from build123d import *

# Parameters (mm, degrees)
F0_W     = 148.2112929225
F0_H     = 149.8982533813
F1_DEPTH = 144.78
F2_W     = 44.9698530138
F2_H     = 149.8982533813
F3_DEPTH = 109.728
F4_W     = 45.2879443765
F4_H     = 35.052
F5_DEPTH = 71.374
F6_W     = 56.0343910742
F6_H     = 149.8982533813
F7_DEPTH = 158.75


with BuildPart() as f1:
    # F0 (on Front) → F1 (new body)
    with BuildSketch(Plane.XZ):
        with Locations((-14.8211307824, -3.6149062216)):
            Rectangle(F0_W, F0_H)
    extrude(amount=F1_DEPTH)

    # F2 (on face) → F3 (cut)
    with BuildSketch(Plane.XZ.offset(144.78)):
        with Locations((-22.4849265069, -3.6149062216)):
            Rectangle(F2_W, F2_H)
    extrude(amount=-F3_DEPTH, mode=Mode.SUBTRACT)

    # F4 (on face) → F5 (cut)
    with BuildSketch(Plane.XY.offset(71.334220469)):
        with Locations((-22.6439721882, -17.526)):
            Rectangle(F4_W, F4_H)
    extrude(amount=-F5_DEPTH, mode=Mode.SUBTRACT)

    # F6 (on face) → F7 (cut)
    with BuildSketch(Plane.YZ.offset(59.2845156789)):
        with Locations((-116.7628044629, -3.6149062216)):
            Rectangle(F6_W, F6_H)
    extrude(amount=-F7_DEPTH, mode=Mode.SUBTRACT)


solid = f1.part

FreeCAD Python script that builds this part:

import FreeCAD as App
import Part
import Sketcher
Q = App.Units.Quantity

doc = App.newDocument("Part")
body = doc.addObject("PartDesign::Body", "Body")

# Sketch on XZ plane
sketch1 = doc.addObject("Sketcher::SketchObject", "Sketch")
body.addObject(sketch1)
sketch1.AttachmentSupport = (doc.XZ_Plane, [""])
sketch1.MapMode = "FlatFace"
sketch1.addGeometry(Part.LineSegment(App.Vector(-89, 71, 0), App.Vector(-89, -79, 0)), False)
sketch1.addGeometry(Part.LineSegment(App.Vector(-89, -79, 0), App.Vector(59, -79, 0)), False)
sketch1.addGeometry(Part.LineSegment(App.Vector(59, -79, 0), App.Vector(59, 71, 0)), False)
sketch1.addGeometry(Part.LineSegment(App.Vector(59, 71, 0), App.Vector(-89, 71, 0)), False)
sketch1.addConstraint(Sketcher.Constraint("Coincident", 0, 2, 1, 1))
sketch1.addConstraint(Sketcher.Constraint("Coincident", 1, 2, 2, 1))
sketch1.addConstraint(Sketcher.Constraint("Coincident", 2, 2, 3, 1))
sketch1.addConstraint(Sketcher.Constraint("Coincident", 3, 2, 0, 1))
sketch1.addConstraint(Sketcher.Constraint("Vertical", 0))
sketch1.addConstraint(Sketcher.Constraint("Horizontal", 1))
sketch1.addConstraint(Sketcher.Constraint("Vertical", 2))
sketch1.addConstraint(Sketcher.Constraint("Horizontal", 3))
sketch1.addConstraint(Sketcher.Constraint("DistanceX", 1, 1, 1, 2, Q("148.211293 mm")))
sketch1.addConstraint(Sketcher.Constraint("DistanceY", 0, 2, 0, 1, Q("149.898253 mm")))
sketch1.addConstraint(Sketcher.Constraint("DistanceY", -1, 1, 2, 2, Q("71.33422 mm")))
sketch1.addConstraint(Sketcher.Constraint("DistanceX", 0, 2, -1, 1, Q("88.926777 mm")))
pad1 = doc.addObject("PartDesign::Pad", "Pad")
body.addObject(pad1)
pad1.Profile = sketch1
pad1.Length = Q("5.7 in")

# Sketch on XZ plane
sketch2 = doc.addObject("Sketcher::SketchObject", "Sketch001")
body.addObject(sketch2)
sketch2.AttachmentSupport = (doc.XZ_Plane, [""])
sketch2.MapMode = "FlatFace"
sketch2.AttachmentOffset = App.Placement(App.Vector(0, 0, 5.7 * 25.4), App.Rotation())
sketch2.addGeometry(Part.LineSegment(App.Vector(-45, 71, 0), App.Vector(-45, -79, 0)), False)
sketch2.addGeometry(Part.LineSegment(App.Vector(-45, -79, 0), App.Vector(0, -79, 0)), False)
sketch2.addGeometry(Part.LineSegment(App.Vector(0, -79, 0), App.Vector(0, 71, 0)), False)
sketch2.addGeometry(Part.LineSegment(App.Vector(0, 71, 0), App.Vector(-45, 71, 0)), False)
sketch2.addConstraint(Sketcher.Constraint("Coincident", 0, 2, 1, 1))
sketch2.addConstraint(Sketcher.Constraint("Coincident", 1, 2, 2, 1))
sketch2.addConstraint(Sketcher.Constraint("Coincident", 2, 2, 3, 1))
sketch2.addConstraint(Sketcher.Constraint("Coincident", 3, 2, 0, 1))
sketch2.addConstraint(Sketcher.Constraint("Vertical", 0))
sketch2.addConstraint(Sketcher.Constraint("Horizontal", 1))
sketch2.addConstraint(Sketcher.Constraint("Vertical", 2))
sketch2.addConstraint(Sketcher.Constraint("Horizontal", 3))
sketch2.addConstraint(Sketcher.Constraint("PointOnObject", 1, 2, -2))
sketch2.addConstraint(Sketcher.Constraint("DistanceX", 1, 1, 1, 2, Q("44.969853 mm")))
sketch2.addConstraint(Sketcher.Constraint("DistanceY", 0, 2, 0, 1, Q("149.898253 mm")))
sketch2.addConstraint(Sketcher.Constraint("DistanceY", -1, 1, 2, 2, Q("71.33422 mm")))
pocket1 = doc.addObject("PartDesign::Pocket", "Pocket")
body.addObject(pocket1)
pocket1.Profile = sketch2
pocket1.Length = Q("4.32 in")

# Sketch on XY plane
sketch3 = doc.addObject("Sketcher::SketchObject", "Sketch002")
body.addObject(sketch3)
sketch3.AttachmentSupport = (doc.XY_Plane, [""])
sketch3.MapMode = "FlatFace"
sketch3.AttachmentOffset = App.Placement(App.Vector(0, 0, 71.33422), App.Rotation())
sketch3.addGeometry(Part.LineSegment(App.Vector(-45, 0, 0), App.Vector(-45, -35, 0)), False)
sketch3.addGeometry(Part.LineSegment(App.Vector(-45, -35, 0), App.Vector(0, -35, 0)), False)
sketch3.addGeometry(Part.LineSegment(App.Vector(0, -35, 0), App.Vector(0, 0, 0)), False)
sketch3.addGeometry(Part.LineSegment(App.Vector(0, 0, 0), App.Vector(-45, 0, 0)), False)
sketch3.addConstraint(Sketcher.Constraint("Coincident", 0, 2, 1, 1))
sketch3.addConstraint(Sketcher.Constraint("Coincident", 1, 2, 2, 1))
sketch3.addConstraint(Sketcher.Constraint("Coincident", 2, 2, 3, 1))
sketch3.addConstraint(Sketcher.Constraint("Coincident", 3, 2, 0, 1))
sketch3.addConstraint(Sketcher.Constraint("Vertical", 0))
sketch3.addConstraint(Sketcher.Constraint("Horizontal", 1))
sketch3.addConstraint(Sketcher.Constraint("Vertical", 2))
sketch3.addConstraint(Sketcher.Constraint("Horizontal", 3))
sketch3.addConstraint(Sketcher.Constraint("Coincident", 2, 2, -1, 1))
sketch3.addConstraint(Sketcher.Constraint("DistanceY", 0, 2, 0, 1, Q("1.38 in")))
sketch3.addConstraint(Sketcher.Constraint("DistanceX", 1, 1, 1, 2, Q("45.287944 mm")))
pocket2 = doc.addObject("PartDesign::Pocket", "Pocket001")
body.addObject(pocket2)
pocket2.Profile = sketch3
pocket2.Length = Q("2.81 in")

# Sketch on YZ plane
sketch4 = doc.addObject("Sketcher::SketchObject", "Sketch003")
body.addObject(sketch4)
sketch4.AttachmentSupport = (doc.YZ_Plane, [""])
sketch4.MapMode = "FlatFace"
sketch4.AttachmentOffset = App.Placement(App.Vector(0, 0, 59.284516), App.Rotation())
sketch4.addGeometry(Part.LineSegment(App.Vector(-145, 71, 0), App.Vector(-145, -79, 0)), False)
sketch4.addGeometry(Part.LineSegment(App.Vector(-145, -79, 0), App.Vector(-89, -79, 0)), False)
sketch4.addGeometry(Part.LineSegment(App.Vector(-89, -79, 0), App.Vector(-89, 71, 0)), False)
sketch4.addGeometry(Part.LineSegment(App.Vector(-89, 71, 0), App.Vector(-145, 71, 0)), False)
sketch4.addConstraint(Sketcher.Constraint("Coincident", 0, 2, 1, 1))
sketch4.addConstraint(Sketcher.Constraint("Coincident", 1, 2, 2, 1))
sketch4.addConstraint(Sketcher.Constraint("Coincident", 2, 2, 3, 1))
sketch4.addConstraint(Sketcher.Constraint("Coincident", 3, 2, 0, 1))
sketch4.addConstraint(Sketcher.Constraint("Vertical", 0))
sketch4.addConstraint(Sketcher.Constraint("Horizontal", 1))
sketch4.addConstraint(Sketcher.Constraint("Vertical", 2))
sketch4.addConstraint(Sketcher.Constraint("Horizontal", 3))
sketch4.addConstraint(Sketcher.Constraint("DistanceX", 0, 2, -1, 1, Q("5.7 in")))
sketch4.addConstraint(Sketcher.Constraint("DistanceX", 1, 1, 1, 2, Q("56.034391 mm")))
sketch4.addConstraint(Sketcher.Constraint("DistanceY", 0, 2, 0, 1, Q("149.898253 mm")))
sketch4.addConstraint(Sketcher.Constraint("DistanceY", -1, 1, 2, 2, Q("71.33422 mm")))
pocket3 = doc.addObject("PartDesign::Pocket", "Pocket002")
body.addObject(pocket3)
pocket3.Profile = sketch4
pocket3.Length = Q("6.25 in")

doc.recompute()
